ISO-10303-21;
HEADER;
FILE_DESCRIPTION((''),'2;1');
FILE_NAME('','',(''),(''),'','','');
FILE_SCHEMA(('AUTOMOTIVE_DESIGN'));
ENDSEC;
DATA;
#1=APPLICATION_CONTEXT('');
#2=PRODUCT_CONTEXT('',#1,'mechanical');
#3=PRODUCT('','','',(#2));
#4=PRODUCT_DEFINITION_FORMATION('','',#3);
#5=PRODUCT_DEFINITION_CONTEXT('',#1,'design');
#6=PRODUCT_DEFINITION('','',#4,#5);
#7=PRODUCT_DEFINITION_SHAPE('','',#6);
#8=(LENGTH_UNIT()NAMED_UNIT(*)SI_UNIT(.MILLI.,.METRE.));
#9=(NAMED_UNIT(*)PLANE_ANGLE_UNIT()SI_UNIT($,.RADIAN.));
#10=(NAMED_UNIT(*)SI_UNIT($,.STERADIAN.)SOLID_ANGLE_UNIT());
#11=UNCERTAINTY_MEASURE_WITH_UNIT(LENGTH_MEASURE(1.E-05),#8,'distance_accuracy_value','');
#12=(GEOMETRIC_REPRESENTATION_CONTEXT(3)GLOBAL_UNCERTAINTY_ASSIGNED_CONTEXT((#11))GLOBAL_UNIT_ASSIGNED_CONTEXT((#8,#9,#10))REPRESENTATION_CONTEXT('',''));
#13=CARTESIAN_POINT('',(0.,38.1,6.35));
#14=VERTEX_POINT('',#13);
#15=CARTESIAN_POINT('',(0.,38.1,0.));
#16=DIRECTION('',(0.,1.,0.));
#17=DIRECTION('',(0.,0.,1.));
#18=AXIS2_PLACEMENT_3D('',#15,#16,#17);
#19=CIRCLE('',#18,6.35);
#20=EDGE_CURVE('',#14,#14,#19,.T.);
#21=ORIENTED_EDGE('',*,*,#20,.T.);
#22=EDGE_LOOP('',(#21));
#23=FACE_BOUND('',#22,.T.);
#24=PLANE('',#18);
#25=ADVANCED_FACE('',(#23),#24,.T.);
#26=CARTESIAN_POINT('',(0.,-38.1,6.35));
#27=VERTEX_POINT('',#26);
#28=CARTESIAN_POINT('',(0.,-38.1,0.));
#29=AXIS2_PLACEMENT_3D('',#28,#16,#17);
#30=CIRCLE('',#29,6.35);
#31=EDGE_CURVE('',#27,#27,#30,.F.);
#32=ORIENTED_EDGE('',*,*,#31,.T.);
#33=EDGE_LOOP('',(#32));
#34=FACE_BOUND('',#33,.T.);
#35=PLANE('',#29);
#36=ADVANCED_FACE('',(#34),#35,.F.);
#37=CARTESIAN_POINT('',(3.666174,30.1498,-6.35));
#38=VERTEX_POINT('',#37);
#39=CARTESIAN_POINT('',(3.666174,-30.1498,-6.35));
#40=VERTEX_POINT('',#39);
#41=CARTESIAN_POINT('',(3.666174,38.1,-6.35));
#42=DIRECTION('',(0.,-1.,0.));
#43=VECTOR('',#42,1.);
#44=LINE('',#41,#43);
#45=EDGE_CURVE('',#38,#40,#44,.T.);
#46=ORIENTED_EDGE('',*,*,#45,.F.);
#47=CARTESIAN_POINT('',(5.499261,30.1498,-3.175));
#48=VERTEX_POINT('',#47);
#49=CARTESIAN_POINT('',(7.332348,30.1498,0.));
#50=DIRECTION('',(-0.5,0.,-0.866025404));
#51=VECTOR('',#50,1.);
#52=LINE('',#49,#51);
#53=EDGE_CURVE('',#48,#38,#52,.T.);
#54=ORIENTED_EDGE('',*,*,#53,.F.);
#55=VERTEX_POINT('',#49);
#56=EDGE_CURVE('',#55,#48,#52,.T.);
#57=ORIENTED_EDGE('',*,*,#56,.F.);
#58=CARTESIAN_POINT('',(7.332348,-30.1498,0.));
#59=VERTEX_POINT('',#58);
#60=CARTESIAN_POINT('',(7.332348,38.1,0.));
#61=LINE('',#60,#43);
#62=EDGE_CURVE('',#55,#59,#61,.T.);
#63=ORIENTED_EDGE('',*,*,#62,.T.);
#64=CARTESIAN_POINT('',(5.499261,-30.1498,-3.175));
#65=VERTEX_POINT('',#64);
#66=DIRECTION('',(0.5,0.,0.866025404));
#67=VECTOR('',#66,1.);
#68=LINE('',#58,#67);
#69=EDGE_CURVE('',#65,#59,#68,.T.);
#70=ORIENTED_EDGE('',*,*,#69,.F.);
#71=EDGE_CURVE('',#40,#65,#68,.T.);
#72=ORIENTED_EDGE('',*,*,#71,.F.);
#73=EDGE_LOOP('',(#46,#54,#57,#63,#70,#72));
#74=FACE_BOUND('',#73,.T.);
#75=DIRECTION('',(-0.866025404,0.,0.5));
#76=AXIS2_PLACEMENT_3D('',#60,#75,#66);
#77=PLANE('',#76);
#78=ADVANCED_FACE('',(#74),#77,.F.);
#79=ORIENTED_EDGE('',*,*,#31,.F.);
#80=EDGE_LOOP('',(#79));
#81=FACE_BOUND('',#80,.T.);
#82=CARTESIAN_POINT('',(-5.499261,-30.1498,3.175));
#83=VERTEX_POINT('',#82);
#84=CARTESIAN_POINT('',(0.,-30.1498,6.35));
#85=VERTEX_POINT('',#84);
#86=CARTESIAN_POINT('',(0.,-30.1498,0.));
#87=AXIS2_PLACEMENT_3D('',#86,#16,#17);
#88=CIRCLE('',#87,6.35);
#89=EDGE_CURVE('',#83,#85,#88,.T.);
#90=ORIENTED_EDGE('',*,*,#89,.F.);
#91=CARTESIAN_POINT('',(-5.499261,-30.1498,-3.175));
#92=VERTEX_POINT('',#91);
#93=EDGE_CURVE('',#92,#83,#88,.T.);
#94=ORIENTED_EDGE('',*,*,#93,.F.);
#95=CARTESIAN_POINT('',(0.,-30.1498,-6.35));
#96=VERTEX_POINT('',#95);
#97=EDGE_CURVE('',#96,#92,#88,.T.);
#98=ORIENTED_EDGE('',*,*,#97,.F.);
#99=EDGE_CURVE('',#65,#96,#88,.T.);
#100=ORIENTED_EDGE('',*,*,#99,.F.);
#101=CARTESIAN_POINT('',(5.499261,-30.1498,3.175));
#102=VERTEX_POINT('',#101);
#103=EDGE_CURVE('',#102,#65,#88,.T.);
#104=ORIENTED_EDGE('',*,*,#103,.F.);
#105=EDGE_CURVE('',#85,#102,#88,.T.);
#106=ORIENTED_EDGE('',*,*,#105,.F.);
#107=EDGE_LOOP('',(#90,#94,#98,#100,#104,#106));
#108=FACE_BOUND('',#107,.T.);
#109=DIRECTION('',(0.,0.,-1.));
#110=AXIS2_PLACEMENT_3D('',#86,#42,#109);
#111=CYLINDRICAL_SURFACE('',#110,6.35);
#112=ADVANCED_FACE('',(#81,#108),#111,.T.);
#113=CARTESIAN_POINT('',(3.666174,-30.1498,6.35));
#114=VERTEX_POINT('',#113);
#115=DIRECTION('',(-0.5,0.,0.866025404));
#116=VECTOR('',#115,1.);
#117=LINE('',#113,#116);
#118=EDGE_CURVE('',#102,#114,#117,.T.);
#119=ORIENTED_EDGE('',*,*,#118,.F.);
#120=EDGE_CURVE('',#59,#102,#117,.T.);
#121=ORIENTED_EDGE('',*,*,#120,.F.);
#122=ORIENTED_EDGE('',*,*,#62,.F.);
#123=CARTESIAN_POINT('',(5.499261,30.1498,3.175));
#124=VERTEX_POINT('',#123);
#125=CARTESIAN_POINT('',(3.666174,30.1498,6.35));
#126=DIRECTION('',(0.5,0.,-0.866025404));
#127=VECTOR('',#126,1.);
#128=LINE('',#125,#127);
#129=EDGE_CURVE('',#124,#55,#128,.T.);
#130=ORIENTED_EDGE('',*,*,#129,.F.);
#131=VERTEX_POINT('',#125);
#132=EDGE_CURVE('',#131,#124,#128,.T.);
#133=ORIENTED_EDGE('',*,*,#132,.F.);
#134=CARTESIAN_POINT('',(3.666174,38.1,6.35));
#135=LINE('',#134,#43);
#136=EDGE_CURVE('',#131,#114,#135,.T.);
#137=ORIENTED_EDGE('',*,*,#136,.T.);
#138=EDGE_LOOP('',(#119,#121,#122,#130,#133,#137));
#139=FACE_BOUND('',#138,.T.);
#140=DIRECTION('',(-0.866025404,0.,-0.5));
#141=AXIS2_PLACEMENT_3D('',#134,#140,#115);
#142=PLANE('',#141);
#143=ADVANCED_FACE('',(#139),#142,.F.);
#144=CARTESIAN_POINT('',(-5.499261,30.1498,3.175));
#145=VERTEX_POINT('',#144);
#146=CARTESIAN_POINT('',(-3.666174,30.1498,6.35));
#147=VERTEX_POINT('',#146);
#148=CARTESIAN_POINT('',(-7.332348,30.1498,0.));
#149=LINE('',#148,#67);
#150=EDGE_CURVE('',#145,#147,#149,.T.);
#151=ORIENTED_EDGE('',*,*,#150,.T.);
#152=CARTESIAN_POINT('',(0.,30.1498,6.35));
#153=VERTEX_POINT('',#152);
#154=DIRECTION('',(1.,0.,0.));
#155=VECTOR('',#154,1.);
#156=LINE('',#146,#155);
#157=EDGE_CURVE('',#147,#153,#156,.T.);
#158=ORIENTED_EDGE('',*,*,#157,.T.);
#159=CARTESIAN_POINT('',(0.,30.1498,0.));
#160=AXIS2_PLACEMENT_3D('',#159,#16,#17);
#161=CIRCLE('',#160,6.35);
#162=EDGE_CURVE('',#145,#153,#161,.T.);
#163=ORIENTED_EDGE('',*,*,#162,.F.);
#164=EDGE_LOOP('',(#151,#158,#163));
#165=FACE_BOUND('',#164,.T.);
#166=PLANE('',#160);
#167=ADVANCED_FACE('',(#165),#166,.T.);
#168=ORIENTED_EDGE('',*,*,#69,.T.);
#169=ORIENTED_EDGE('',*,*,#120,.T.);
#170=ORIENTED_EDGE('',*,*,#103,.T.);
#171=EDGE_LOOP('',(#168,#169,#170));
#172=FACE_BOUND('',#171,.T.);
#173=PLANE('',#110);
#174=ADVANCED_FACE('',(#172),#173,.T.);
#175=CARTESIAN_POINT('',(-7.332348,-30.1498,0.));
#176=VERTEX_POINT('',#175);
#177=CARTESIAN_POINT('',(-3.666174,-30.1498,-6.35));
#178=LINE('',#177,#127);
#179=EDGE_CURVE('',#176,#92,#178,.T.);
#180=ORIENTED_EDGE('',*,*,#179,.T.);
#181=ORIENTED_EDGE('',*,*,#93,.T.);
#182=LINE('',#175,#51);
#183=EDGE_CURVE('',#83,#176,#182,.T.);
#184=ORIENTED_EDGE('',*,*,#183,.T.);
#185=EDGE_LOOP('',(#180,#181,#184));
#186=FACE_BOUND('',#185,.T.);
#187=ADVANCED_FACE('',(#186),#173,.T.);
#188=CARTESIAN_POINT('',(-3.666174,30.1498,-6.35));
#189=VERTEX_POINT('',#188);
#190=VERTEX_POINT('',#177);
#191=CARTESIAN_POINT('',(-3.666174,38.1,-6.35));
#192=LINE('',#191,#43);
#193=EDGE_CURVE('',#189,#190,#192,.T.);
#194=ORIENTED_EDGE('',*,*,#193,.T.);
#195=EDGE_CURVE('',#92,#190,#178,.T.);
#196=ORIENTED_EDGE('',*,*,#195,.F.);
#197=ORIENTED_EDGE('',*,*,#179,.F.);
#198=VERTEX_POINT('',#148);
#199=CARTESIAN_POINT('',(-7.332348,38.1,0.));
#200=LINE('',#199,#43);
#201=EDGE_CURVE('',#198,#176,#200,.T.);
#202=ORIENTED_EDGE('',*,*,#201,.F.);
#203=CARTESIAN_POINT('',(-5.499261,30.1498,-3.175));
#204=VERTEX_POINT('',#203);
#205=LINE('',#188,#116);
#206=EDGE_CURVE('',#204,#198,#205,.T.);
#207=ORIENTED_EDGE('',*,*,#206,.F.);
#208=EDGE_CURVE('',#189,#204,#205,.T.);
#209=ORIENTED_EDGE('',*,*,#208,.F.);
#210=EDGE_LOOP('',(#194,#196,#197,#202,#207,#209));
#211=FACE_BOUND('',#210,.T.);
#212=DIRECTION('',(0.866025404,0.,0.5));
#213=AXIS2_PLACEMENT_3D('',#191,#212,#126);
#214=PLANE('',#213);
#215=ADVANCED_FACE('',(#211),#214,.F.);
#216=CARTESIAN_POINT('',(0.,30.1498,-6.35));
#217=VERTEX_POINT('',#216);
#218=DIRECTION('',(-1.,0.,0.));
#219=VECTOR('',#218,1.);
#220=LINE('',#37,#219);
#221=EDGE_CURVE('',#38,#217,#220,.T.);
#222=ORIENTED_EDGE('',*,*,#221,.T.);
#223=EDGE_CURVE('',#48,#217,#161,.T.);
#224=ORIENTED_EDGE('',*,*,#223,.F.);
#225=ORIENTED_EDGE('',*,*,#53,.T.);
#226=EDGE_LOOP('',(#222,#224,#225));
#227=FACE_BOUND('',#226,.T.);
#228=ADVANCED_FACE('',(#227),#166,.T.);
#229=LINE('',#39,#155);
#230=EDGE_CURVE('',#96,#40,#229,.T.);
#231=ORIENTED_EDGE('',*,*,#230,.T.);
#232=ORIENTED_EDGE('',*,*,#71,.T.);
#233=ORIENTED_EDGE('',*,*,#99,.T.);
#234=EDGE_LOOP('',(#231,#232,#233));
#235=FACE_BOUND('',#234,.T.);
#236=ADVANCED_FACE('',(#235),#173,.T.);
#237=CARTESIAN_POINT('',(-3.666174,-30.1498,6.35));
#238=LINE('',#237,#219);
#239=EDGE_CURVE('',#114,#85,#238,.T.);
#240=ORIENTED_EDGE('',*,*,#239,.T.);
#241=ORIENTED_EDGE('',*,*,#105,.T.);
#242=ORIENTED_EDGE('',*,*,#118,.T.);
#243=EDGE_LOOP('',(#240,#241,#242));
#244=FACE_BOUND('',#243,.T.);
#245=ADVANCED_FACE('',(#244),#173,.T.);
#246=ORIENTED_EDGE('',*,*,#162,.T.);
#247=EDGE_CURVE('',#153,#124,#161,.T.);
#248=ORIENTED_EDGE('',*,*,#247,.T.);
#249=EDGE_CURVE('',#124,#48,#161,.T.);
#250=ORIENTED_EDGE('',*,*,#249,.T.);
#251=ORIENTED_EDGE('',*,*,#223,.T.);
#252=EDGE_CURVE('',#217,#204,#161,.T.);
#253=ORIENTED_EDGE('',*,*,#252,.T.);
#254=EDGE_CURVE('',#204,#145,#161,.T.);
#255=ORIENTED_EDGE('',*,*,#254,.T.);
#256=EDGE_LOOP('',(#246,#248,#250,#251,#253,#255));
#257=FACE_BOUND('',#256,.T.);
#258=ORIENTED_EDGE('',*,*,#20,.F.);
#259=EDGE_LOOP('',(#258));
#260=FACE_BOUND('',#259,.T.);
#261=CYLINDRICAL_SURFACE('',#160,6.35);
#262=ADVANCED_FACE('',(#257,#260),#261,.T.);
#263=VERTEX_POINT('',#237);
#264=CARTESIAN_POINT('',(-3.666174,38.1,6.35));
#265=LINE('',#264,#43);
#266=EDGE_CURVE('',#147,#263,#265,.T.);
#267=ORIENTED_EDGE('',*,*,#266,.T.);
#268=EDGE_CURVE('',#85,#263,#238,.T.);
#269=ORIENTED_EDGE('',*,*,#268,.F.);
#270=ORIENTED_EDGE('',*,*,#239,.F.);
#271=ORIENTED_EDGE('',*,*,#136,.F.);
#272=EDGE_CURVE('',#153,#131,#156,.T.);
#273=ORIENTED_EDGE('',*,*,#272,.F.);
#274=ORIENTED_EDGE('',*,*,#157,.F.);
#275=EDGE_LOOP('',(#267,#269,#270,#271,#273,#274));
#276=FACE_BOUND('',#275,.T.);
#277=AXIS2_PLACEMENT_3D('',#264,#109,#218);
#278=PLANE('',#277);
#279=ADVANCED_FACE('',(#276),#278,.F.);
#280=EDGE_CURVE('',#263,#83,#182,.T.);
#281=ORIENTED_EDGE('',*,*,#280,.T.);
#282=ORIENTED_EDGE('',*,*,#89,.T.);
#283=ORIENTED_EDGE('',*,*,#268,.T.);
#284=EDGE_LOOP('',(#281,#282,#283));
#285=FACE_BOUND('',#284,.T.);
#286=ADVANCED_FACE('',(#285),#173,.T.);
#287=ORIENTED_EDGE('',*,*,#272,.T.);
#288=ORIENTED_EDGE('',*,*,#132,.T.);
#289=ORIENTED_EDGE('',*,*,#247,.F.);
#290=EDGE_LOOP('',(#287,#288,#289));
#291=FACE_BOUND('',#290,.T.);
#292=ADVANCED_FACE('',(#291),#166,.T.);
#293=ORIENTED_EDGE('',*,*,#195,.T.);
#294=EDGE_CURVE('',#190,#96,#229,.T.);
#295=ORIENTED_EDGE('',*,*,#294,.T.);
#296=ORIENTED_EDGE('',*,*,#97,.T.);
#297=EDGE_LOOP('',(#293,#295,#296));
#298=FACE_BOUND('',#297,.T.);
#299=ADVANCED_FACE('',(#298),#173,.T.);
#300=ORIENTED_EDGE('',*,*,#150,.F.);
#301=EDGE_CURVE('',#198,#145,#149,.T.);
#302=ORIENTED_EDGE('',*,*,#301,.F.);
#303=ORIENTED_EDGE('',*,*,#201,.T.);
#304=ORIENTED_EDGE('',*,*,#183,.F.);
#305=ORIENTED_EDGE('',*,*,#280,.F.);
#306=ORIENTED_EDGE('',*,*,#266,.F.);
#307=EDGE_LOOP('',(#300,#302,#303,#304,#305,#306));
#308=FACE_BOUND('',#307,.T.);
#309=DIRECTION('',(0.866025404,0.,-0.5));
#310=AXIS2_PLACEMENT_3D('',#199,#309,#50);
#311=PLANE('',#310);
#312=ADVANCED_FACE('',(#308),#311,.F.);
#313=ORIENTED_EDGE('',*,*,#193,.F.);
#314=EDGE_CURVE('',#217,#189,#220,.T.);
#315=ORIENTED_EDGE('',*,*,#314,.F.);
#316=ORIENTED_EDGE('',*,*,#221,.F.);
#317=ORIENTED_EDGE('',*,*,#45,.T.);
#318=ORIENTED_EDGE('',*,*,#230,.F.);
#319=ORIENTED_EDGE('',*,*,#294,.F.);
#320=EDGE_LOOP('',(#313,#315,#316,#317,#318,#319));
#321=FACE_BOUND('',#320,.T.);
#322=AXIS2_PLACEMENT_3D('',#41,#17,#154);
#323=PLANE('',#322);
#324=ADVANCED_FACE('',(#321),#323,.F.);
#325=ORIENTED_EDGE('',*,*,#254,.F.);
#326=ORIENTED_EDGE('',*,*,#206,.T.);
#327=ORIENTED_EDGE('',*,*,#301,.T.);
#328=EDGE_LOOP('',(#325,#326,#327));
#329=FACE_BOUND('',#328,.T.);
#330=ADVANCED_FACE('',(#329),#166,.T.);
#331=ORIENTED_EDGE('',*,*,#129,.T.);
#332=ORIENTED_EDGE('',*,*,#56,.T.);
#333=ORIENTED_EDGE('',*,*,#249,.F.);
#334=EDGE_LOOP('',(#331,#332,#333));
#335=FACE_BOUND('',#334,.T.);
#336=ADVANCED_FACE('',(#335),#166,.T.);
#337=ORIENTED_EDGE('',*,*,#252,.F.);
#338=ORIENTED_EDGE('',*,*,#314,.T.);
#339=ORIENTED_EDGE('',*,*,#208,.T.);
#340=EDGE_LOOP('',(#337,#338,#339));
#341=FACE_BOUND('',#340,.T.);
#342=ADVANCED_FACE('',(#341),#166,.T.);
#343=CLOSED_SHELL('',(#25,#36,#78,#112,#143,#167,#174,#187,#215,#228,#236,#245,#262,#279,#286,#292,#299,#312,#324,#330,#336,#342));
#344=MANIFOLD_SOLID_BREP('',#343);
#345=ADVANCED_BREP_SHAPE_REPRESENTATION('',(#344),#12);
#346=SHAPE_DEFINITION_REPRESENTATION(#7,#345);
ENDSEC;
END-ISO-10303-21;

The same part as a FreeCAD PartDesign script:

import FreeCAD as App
import Part
import Sketcher

V = App.Vector
Q = App.Units.Quantity


def add_polygon(sketch, points):
    """Adds a closed chain of lines whose ends are joined by coincident constraints."""
    first, n = sketch.GeometryCount, len(points)
    for a, b in zip(points, points[1:] + points[:1]):
        sketch.addGeometry(Part.LineSegment(App.Vector(*a, 0), App.Vector(*b, 0)), False)
    for i in range(n):
        sketch.addConstraint(Sketcher.Constraint("Coincident", first + i, 2, first + (i + 1) % n, 1))

doc = App.newDocument("Part")
params = doc.addObject("Spreadsheet::Sheet", "Params")
for row, (alias, value) in enumerate([
    ("pad1_length", "3 in"),
    ("sketch2_diameter", "0.5 in"),
    ("pocket1_length", "0.313 in"),
], start=1):
    params.set(f"A{row}", alias)
    params.set(f"B{row}", "=" + value)
    params.setAlias(f"B{row}", alias)

body = doc.addObject("PartDesign::Body", "Body")

sketch1 = body.newObject("Sketcher::SketchObject", "Sketch")
sketch1.AttachmentSupport = (doc.getObject("XZ_Plane"), [""])
sketch1.MapMode = "FlatFace"
add_polygon(sketch1, [(4, 6), (7, 0), (4, -6), (-4, -6), (-7, 0), (-4, 6)])
sketch1.addConstraint(Sketcher.Constraint("Horizontal", 2))
sketch1.addConstraint(Sketcher.Constraint("Horizontal", 5))
sketch1.addConstraint(Sketcher.Constraint("Symmetric", 0, 2, 3, 2, -1, 1))
sketch1.addConstraint(Sketcher.Constraint("Symmetric", 1, 2, 4, 2, -1, 1))
sketch1.addConstraint(Sketcher.Constraint("PointOnObject", 0, 2, -1))
sketch1.addConstraint(Sketcher.Constraint("Parallel", 0, 3))
sketch1.addConstraint(Sketcher.Constraint("Vertical", 2, 2, 4, 2))
sketch1.addConstraint(Sketcher.Constraint("Angle", 0, Q("-60 deg")))
sketch1.addConstraint(Sketcher.Constraint("DistanceY", 2, 2, 4, 2, Q("0.5 in")))
sketch1.addConstraint(Sketcher.Constraint("DistanceX", 2, 2, 2, 1, Q("7.332348 mm")))
pad1 = body.newObject("PartDesign::Pad", "Pad")
pad1.Profile = sketch1
pad1.setExpression("Length", "Params.pad1_length")
pad1.Midplane = True

sketch2 = body.newObject("Sketcher::SketchObject", "Sketch001")
sketch2.AttachmentSupport = (doc.getObject("XZ_Plane"), [""])
sketch2.MapMode = "FlatFace"
sketch2.AttachmentOffset = App.Placement(V(0, 0, -1.5 * 25.4), App.Rotation())
add_polygon(sketch2, [(-16, -15), (-16, 15), (16, 15), (16, -15)])
sketch2.addGeometry(Part.Circle(V(0, 0, 0), V(0, 0, 1), 6), False)
sketch2.addConstraint(Sketcher.Constraint("Vertical", 0))
sketch2.addConstraint(Sketcher.Constraint("Horizontal", 1))
sketch2.addConstraint(Sketcher.Constraint("Vertical", 2))
sketch2.addConstraint(Sketcher.Constraint("Horizontal", 3))
sketch2.addConstraint(Sketcher.Constraint("Coincident", 4, 3, -1, 1))
sketch2.addConstraint(Sketcher.Constraint("Symmetric", 0, 2, 2, 2, -1, 1))
sketch2.addConstraint(Sketcher.Constraint("Diameter", 4, Q("0.5 in")))
sketch2.addConstraint(Sketcher.Constraint("DistanceX", 1, 1, 1, 2, Q("32.39 mm")))
sketch2.addConstraint(Sketcher.Constraint("DistanceY", 0, 1, 0, 2, Q("30.426 mm")))
sketch2.setExpression("Constraints[10]", "Params.sketch2_diameter")
pocket1 = body.newObject("PartDesign::Pocket", "Pocket")
pocket1.Profile = sketch2
pocket1.setExpression("Length", "Params.pocket1_length")
pocket1.Reversed = True
doc.recompute()

mirrored = body.newObject("PartDesign::Mirrored", "Mirrored")
mirrored.Originals = [pocket1]
mirrored.MirrorPlane = (doc.getObject("XZ_Plane"), [""])
body.Tip = mirrored

doc.recompute()
